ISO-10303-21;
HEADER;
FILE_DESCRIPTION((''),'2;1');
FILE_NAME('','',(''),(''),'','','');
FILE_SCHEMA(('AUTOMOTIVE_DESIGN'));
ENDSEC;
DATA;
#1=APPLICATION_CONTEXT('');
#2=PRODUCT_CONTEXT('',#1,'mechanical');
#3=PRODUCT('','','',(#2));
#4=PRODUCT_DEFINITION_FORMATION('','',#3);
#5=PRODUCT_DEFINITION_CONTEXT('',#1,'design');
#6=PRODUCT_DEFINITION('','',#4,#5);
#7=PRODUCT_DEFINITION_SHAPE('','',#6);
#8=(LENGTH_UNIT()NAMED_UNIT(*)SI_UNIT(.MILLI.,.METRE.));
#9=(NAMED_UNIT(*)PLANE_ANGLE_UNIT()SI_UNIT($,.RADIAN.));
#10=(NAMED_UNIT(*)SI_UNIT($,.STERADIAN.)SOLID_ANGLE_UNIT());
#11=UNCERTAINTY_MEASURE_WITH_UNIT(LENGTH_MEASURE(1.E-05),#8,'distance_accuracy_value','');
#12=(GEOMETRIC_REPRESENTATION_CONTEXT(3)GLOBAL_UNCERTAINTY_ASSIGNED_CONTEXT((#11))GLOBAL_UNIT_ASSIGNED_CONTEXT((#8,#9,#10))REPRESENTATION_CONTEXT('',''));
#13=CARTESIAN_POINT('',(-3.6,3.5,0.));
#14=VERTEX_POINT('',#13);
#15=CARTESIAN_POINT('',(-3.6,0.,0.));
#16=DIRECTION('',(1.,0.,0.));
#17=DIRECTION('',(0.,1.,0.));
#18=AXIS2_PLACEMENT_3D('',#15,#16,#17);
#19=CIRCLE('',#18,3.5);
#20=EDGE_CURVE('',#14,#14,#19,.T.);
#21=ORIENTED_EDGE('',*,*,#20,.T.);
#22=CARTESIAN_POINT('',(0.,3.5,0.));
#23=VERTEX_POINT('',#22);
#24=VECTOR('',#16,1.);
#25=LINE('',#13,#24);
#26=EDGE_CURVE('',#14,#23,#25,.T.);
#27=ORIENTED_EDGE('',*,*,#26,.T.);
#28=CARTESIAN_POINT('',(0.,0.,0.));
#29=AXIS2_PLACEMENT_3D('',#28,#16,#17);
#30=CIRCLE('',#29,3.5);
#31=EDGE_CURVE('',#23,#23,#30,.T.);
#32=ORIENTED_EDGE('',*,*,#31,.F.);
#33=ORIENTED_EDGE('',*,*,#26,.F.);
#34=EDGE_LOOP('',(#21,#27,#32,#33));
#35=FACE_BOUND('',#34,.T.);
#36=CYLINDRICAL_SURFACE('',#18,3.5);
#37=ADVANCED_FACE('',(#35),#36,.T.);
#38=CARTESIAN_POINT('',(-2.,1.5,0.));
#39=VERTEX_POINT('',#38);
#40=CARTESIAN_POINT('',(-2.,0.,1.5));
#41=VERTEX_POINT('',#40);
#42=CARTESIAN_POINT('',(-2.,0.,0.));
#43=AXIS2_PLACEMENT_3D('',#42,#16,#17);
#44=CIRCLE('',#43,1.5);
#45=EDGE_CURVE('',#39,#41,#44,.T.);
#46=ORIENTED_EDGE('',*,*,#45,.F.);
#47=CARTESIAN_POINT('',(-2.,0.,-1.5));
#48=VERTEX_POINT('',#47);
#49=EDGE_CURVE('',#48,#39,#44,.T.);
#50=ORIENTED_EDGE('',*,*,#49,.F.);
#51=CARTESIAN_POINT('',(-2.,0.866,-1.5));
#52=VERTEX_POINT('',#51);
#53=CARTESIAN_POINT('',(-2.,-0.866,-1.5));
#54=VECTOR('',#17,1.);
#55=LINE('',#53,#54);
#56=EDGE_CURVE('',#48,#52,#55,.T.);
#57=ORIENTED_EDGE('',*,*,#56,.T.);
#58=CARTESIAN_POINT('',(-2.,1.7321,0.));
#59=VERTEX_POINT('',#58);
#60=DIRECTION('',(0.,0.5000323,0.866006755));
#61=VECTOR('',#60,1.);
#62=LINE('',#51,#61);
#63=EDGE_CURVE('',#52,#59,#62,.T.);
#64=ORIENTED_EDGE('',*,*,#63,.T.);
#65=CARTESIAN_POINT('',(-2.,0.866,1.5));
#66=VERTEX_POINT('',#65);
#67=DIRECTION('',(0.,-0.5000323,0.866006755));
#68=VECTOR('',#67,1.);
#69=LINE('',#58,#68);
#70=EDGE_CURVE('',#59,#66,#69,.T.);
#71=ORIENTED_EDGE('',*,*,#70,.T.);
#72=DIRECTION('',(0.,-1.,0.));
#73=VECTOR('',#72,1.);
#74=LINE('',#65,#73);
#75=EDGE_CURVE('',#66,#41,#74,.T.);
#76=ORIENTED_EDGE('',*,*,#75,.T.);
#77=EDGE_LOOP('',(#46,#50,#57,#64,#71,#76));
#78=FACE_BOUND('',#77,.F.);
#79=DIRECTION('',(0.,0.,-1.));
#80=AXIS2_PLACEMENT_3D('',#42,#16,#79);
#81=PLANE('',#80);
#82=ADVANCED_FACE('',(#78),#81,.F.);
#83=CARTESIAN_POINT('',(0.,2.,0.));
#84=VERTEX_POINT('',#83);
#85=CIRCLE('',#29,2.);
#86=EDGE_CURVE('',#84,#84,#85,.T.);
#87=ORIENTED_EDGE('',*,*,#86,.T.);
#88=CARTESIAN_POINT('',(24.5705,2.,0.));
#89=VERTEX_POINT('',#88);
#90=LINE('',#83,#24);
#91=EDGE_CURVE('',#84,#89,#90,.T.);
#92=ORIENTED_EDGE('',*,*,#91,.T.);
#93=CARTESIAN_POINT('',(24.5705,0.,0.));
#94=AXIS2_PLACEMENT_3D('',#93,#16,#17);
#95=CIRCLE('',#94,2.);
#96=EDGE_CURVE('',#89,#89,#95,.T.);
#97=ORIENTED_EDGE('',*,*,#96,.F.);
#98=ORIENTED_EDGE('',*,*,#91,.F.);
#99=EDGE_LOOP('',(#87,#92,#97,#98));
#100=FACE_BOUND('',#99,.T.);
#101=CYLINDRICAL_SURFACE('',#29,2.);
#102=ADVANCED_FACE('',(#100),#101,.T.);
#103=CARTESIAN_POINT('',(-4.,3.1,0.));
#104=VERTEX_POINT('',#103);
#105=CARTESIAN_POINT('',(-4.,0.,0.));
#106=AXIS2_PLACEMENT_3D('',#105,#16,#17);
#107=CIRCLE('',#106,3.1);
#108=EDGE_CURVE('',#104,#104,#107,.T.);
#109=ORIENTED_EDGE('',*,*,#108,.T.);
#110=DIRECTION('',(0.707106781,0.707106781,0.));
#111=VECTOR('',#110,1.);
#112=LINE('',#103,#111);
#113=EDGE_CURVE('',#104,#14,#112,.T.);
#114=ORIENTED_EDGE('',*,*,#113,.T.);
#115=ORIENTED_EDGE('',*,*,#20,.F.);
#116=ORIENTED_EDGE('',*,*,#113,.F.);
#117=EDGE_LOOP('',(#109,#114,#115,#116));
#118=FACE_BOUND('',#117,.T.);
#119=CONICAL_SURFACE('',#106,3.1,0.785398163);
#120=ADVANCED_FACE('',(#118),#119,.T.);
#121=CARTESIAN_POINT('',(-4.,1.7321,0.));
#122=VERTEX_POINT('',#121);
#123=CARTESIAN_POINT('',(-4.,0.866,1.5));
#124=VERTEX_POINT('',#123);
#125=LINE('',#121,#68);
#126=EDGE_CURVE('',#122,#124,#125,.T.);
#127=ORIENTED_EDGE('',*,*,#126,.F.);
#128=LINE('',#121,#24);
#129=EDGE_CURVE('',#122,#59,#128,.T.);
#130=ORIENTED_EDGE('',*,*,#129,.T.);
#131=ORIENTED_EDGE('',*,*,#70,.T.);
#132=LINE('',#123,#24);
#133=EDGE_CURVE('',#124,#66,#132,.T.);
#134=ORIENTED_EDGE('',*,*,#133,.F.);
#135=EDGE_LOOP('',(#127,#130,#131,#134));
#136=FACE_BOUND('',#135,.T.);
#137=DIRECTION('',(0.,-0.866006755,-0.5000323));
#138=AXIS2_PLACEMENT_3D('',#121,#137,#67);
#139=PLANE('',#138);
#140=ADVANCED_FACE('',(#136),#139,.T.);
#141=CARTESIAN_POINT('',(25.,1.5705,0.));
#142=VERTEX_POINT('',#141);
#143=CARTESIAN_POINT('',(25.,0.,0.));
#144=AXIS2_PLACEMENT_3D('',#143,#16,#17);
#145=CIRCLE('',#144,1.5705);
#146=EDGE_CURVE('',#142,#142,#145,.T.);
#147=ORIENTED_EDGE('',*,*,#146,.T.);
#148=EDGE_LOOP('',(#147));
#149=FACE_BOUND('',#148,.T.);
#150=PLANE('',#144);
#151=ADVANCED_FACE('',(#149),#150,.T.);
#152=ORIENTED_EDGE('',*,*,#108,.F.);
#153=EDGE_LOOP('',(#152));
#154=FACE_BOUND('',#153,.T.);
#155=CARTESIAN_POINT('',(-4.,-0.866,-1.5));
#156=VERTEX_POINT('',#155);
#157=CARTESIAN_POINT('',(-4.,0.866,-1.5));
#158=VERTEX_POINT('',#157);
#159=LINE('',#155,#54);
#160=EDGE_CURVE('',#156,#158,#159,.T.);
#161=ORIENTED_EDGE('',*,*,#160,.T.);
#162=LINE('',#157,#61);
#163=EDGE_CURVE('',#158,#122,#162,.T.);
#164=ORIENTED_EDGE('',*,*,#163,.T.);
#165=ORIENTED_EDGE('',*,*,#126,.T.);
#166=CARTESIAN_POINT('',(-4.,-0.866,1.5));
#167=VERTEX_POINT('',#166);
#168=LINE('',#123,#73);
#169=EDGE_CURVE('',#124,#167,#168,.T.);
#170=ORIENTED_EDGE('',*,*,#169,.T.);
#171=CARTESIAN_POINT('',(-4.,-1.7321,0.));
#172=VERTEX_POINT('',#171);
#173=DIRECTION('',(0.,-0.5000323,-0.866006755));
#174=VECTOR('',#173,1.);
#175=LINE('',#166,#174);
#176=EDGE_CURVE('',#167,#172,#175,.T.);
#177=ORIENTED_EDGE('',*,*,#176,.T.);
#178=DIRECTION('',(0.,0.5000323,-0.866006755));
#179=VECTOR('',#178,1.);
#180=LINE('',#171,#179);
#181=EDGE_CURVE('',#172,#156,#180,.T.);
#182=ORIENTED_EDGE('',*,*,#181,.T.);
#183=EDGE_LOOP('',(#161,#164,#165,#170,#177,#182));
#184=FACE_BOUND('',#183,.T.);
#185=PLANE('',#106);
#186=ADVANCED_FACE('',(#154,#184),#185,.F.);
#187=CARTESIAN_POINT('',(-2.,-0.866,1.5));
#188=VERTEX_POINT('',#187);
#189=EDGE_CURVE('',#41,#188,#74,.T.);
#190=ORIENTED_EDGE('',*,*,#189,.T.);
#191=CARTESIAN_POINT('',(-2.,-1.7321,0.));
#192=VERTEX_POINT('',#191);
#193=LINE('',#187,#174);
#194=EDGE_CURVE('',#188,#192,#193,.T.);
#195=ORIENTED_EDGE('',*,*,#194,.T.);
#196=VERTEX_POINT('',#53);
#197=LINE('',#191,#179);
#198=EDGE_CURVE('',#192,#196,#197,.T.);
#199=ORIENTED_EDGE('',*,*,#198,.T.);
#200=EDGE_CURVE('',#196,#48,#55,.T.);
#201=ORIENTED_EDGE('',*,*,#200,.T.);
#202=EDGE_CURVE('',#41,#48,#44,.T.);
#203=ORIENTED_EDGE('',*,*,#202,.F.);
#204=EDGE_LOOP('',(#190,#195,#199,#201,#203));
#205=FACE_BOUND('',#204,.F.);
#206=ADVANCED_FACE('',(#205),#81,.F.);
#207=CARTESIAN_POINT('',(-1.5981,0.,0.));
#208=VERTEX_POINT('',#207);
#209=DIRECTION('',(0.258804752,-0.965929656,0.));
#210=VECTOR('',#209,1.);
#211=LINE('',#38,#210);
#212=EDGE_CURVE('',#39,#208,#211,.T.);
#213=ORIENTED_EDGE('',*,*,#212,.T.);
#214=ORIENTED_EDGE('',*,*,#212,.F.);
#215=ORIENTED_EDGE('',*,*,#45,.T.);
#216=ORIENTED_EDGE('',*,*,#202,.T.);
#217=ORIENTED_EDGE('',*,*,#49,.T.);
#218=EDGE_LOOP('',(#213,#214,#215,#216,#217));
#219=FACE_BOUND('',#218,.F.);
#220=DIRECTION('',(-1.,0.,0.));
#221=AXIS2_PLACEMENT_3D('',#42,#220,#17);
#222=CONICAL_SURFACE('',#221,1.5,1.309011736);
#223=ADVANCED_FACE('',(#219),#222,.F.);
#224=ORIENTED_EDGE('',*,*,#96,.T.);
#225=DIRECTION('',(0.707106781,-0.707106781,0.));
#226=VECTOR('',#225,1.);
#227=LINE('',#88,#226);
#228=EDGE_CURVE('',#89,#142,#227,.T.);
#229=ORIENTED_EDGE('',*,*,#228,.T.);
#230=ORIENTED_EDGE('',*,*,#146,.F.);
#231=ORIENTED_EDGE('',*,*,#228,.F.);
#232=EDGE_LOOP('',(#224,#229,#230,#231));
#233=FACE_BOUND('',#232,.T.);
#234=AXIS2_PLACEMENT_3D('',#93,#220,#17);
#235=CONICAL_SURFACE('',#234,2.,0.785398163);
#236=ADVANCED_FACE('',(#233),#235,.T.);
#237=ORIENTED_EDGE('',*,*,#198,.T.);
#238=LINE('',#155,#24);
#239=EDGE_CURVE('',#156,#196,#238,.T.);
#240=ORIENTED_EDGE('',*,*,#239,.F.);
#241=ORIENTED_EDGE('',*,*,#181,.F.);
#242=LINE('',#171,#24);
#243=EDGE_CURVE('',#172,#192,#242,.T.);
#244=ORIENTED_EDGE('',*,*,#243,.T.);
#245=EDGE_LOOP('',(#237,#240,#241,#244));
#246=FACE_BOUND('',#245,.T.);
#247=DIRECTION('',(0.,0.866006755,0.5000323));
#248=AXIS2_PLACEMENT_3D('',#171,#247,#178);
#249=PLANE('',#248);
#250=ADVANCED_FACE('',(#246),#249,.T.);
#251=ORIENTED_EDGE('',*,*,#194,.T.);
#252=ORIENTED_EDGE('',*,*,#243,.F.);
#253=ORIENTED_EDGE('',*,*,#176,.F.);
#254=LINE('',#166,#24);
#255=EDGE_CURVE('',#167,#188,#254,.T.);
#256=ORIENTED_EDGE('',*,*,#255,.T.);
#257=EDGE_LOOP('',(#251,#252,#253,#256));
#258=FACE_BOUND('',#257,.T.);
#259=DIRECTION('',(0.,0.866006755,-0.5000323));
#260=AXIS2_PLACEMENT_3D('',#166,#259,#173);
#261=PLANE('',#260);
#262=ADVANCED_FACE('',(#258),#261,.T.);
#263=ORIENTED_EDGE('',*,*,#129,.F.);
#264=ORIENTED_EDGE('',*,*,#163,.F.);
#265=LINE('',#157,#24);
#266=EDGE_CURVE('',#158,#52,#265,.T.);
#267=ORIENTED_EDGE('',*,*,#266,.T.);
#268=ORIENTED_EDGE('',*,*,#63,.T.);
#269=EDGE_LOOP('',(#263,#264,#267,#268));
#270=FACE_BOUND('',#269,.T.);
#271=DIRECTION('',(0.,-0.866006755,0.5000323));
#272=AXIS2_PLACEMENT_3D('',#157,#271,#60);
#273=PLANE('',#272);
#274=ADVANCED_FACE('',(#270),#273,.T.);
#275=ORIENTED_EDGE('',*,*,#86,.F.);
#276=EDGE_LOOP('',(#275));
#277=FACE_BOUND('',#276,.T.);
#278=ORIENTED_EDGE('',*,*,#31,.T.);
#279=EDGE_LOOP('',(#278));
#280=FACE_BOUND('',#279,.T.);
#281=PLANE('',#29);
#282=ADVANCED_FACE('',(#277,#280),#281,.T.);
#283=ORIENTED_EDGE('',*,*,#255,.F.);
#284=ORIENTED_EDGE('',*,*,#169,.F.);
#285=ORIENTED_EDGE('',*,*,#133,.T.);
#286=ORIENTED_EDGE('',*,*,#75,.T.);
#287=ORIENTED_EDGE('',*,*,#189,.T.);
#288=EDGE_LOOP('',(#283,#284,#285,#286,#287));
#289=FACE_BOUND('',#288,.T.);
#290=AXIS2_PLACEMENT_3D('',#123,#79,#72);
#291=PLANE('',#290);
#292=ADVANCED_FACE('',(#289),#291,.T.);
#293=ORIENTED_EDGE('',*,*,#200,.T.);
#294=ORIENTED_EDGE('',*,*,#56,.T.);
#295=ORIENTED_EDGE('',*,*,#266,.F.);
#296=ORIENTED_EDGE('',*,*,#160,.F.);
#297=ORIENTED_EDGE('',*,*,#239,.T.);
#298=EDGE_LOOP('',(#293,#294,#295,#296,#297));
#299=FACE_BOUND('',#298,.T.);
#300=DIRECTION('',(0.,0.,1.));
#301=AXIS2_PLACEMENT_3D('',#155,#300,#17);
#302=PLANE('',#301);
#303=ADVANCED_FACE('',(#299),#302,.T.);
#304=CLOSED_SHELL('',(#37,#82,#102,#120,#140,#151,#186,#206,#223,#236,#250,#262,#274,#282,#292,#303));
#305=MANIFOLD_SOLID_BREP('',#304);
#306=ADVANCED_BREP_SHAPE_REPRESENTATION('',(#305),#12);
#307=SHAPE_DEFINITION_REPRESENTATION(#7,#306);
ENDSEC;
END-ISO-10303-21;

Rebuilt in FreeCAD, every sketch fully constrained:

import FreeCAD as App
import Part
import Sketcher

V = App.Vector
Q = App.Units.Quantity


def add_polygon(sketch, points):
    """Adds a closed chain of lines whose ends are joined by coincident constraints."""
    first, n = sketch.GeometryCount, len(points)
    for a, b in zip(points, points[1:] + points[:1]):
        sketch.addGeometry(Part.LineSegment(App.Vector(*a, 0), App.Vector(*b, 0)), False)
    for i in range(n):
        sketch.addConstraint(Sketcher.Constraint("Coincident", first + i, 2, first + (i + 1) % n, 1))

doc = App.newDocument("Part")
params = doc.addObject("Spreadsheet::Sheet", "Params")
for row, (alias, value) in enumerate([
    ("sketch1_width", "29 mm"),
    ("sketch1_width2", "3.6 mm"),
    ("sketch1_height", "1.5 mm"),
    ("sketch1_height2", "3.1 mm"),
    ("revolution_angle", "360 deg"),
    ("sketch2_width", "2 mm"),
    ("sketch2_height", "1.5 mm"),
    ("groove_angle", "360 deg"),
    ("pocket1_length", "2 mm"),
], start=1):
    params.set(f"A{row}", alias)
    params.set(f"B{row}", "=" + value)
    params.setAlias(f"B{row}", alias)

body = doc.addObject("PartDesign::Body", "Body")

# Sketch on XY plane
sketch1 = body.newObject("Sketcher::SketchObject", "Sketch")
sketch1.AttachmentSupport = (doc.getObject("XY_Plane"), [""])
sketch1.MapMode = "FlatFace"
add_polygon(sketch1, [(-4, 0), (25, 0), (25, 1.6), (24.6, 2), (0, 2), (0, 3.5), (-3.6, 3.5), (-4, 3.1)])  # lines 0-7
sketch1.addConstraint([
    Sketcher.Constraint("Horizontal", 0),
    Sketcher.Constraint("Vertical", 1),
    Sketcher.Constraint("Horizontal", 3),
    Sketcher.Constraint("Vertical", 4),
    Sketcher.Constraint("Horizontal", 5),
    Sketcher.Constraint("Vertical", 7),
    Sketcher.Constraint("PointOnObject", 0, 2, -1),
    Sketcher.Constraint("PointOnObject", 3, 2, -2),
    Sketcher.Constraint("Perpendicular", 2, 6),
    Sketcher.Constraint("DistanceX", 0, 1, 0, 2, Q("29 mm")),
    Sketcher.Constraint("Angle", 2, Q("135 deg")),
    Sketcher.Constraint("DistanceX", 5, 2, 5, 1, Q("3.6 mm")),
    Sketcher.Constraint("DistanceY", 4, 1, 4, 2, Q("1.5 mm")),
    Sketcher.Constraint("DistanceY", 7, 2, 7, 1, Q("3.1 mm")),
    Sketcher.Constraint("DistanceX", -1, 1, 0, 2, Q("25 mm")),
    Sketcher.Constraint("DistanceX", 3, 2, 3, 1, Q("24.5705 mm")),
])
sketch1.setExpression("Constraints[17]", "Params.sketch1_width")
sketch1.setExpression("Constraints[19]", "Params.sketch1_width2")
sketch1.setExpression("Constraints[20]", "Params.sketch1_height")
sketch1.setExpression("Constraints[21]", "Params.sketch1_height2")
revolution = body.newObject("PartDesign::Revolution", "Revolution")
revolution.Profile = sketch1
revolution.ReferenceAxis = (sketch1, ["H_Axis"])
revolution.setExpression("Angle", "Params.revolution_angle")

# Sketch on XY plane
sketch2 = body.newObject("Sketcher::SketchObject", "Sketch001")
sketch2.AttachmentSupport = (doc.getObject("XY_Plane"), [""])
sketch2.MapMode = "FlatFace"
add_polygon(sketch2, [(-4, 0), (-1.6, 0), (-2, 1.5), (-4, 1.5)])  # lines 0-3
sketch2.addConstraint([
    Sketcher.Constraint("Horizontal", 0),
    Sketcher.Constraint("Horizontal", 2),
    Sketcher.Constraint("Vertical", 3),
    Sketcher.Constraint("PointOnObject", 0, 2, -1),
    Sketcher.Constraint("DistanceX", 2, 2, 2, 1, Q("2 mm")),
    Sketcher.Constraint("Angle", 1, Q("104.9992 deg")),
    Sketcher.Constraint("DistanceY", 3, 2, 3, 1, Q("1.5 mm")),
    Sketcher.Constraint("DistanceX", 1, 2, -1, 1, Q("2 mm")),
])
sketch2.setExpression("Constraints[8]", "Params.sketch2_width")
sketch2.setExpression("Constraints[10]", "Params.sketch2_height")
groove = body.newObject("PartDesign::Groove", "Groove")
groove.Profile = sketch2
groove.ReferenceAxis = (sketch2, ["H_Axis"])
groove.setExpression("Angle", "Params.groove_angle")

# Sketch on YZ plane
sketch3 = body.newObject("Sketcher::SketchObject", "Sketch002")
sketch3.AttachmentSupport = (doc.getObject("YZ_Plane"), [""])
sketch3.MapMode = "FlatFace"
sketch3.AttachmentOffset = App.Placement(V(0, 0, -4), App.Rotation())
add_polygon(sketch3, [(0.9, 1.5), (-0.9, 1.5), (-1.7, 0), (-0.9, -1.5), (0.9, -1.5), (1.7, 0)])  # lines 0-5
sketch3.addConstraint([
    Sketcher.Constraint("Horizontal", 0),
    Sketcher.Constraint("Horizontal", 3),
    Sketcher.Constraint("Symmetric", 0, 2, 3, 2, -1, 1),
    Sketcher.Constraint("Symmetric", 1, 2, 4, 2, -1, 1),
    Sketcher.Constraint("PointOnObject", 1, 2, -1),
    Sketcher.Constraint("Parallel", 2, 5),
    Sketcher.Constraint("Vertical", 0, 2, 2, 2),
    Sketcher.Constraint("DistanceY", 2, 2, 0, 2, Q("3 mm")),
    Sketcher.Constraint("DistanceX", 0, 2, 0, 1, Q("1.732 mm")),
    Sketcher.Constraint("Distance", 1, Q("1.732 mm")),
])
pocket1 = body.newObject("PartDesign::Pocket", "Pocket")
pocket1.Profile = sketch3
pocket1.setExpression("Length", "Params.pocket1_length")
pocket1.Reversed = True

doc.recompute()
